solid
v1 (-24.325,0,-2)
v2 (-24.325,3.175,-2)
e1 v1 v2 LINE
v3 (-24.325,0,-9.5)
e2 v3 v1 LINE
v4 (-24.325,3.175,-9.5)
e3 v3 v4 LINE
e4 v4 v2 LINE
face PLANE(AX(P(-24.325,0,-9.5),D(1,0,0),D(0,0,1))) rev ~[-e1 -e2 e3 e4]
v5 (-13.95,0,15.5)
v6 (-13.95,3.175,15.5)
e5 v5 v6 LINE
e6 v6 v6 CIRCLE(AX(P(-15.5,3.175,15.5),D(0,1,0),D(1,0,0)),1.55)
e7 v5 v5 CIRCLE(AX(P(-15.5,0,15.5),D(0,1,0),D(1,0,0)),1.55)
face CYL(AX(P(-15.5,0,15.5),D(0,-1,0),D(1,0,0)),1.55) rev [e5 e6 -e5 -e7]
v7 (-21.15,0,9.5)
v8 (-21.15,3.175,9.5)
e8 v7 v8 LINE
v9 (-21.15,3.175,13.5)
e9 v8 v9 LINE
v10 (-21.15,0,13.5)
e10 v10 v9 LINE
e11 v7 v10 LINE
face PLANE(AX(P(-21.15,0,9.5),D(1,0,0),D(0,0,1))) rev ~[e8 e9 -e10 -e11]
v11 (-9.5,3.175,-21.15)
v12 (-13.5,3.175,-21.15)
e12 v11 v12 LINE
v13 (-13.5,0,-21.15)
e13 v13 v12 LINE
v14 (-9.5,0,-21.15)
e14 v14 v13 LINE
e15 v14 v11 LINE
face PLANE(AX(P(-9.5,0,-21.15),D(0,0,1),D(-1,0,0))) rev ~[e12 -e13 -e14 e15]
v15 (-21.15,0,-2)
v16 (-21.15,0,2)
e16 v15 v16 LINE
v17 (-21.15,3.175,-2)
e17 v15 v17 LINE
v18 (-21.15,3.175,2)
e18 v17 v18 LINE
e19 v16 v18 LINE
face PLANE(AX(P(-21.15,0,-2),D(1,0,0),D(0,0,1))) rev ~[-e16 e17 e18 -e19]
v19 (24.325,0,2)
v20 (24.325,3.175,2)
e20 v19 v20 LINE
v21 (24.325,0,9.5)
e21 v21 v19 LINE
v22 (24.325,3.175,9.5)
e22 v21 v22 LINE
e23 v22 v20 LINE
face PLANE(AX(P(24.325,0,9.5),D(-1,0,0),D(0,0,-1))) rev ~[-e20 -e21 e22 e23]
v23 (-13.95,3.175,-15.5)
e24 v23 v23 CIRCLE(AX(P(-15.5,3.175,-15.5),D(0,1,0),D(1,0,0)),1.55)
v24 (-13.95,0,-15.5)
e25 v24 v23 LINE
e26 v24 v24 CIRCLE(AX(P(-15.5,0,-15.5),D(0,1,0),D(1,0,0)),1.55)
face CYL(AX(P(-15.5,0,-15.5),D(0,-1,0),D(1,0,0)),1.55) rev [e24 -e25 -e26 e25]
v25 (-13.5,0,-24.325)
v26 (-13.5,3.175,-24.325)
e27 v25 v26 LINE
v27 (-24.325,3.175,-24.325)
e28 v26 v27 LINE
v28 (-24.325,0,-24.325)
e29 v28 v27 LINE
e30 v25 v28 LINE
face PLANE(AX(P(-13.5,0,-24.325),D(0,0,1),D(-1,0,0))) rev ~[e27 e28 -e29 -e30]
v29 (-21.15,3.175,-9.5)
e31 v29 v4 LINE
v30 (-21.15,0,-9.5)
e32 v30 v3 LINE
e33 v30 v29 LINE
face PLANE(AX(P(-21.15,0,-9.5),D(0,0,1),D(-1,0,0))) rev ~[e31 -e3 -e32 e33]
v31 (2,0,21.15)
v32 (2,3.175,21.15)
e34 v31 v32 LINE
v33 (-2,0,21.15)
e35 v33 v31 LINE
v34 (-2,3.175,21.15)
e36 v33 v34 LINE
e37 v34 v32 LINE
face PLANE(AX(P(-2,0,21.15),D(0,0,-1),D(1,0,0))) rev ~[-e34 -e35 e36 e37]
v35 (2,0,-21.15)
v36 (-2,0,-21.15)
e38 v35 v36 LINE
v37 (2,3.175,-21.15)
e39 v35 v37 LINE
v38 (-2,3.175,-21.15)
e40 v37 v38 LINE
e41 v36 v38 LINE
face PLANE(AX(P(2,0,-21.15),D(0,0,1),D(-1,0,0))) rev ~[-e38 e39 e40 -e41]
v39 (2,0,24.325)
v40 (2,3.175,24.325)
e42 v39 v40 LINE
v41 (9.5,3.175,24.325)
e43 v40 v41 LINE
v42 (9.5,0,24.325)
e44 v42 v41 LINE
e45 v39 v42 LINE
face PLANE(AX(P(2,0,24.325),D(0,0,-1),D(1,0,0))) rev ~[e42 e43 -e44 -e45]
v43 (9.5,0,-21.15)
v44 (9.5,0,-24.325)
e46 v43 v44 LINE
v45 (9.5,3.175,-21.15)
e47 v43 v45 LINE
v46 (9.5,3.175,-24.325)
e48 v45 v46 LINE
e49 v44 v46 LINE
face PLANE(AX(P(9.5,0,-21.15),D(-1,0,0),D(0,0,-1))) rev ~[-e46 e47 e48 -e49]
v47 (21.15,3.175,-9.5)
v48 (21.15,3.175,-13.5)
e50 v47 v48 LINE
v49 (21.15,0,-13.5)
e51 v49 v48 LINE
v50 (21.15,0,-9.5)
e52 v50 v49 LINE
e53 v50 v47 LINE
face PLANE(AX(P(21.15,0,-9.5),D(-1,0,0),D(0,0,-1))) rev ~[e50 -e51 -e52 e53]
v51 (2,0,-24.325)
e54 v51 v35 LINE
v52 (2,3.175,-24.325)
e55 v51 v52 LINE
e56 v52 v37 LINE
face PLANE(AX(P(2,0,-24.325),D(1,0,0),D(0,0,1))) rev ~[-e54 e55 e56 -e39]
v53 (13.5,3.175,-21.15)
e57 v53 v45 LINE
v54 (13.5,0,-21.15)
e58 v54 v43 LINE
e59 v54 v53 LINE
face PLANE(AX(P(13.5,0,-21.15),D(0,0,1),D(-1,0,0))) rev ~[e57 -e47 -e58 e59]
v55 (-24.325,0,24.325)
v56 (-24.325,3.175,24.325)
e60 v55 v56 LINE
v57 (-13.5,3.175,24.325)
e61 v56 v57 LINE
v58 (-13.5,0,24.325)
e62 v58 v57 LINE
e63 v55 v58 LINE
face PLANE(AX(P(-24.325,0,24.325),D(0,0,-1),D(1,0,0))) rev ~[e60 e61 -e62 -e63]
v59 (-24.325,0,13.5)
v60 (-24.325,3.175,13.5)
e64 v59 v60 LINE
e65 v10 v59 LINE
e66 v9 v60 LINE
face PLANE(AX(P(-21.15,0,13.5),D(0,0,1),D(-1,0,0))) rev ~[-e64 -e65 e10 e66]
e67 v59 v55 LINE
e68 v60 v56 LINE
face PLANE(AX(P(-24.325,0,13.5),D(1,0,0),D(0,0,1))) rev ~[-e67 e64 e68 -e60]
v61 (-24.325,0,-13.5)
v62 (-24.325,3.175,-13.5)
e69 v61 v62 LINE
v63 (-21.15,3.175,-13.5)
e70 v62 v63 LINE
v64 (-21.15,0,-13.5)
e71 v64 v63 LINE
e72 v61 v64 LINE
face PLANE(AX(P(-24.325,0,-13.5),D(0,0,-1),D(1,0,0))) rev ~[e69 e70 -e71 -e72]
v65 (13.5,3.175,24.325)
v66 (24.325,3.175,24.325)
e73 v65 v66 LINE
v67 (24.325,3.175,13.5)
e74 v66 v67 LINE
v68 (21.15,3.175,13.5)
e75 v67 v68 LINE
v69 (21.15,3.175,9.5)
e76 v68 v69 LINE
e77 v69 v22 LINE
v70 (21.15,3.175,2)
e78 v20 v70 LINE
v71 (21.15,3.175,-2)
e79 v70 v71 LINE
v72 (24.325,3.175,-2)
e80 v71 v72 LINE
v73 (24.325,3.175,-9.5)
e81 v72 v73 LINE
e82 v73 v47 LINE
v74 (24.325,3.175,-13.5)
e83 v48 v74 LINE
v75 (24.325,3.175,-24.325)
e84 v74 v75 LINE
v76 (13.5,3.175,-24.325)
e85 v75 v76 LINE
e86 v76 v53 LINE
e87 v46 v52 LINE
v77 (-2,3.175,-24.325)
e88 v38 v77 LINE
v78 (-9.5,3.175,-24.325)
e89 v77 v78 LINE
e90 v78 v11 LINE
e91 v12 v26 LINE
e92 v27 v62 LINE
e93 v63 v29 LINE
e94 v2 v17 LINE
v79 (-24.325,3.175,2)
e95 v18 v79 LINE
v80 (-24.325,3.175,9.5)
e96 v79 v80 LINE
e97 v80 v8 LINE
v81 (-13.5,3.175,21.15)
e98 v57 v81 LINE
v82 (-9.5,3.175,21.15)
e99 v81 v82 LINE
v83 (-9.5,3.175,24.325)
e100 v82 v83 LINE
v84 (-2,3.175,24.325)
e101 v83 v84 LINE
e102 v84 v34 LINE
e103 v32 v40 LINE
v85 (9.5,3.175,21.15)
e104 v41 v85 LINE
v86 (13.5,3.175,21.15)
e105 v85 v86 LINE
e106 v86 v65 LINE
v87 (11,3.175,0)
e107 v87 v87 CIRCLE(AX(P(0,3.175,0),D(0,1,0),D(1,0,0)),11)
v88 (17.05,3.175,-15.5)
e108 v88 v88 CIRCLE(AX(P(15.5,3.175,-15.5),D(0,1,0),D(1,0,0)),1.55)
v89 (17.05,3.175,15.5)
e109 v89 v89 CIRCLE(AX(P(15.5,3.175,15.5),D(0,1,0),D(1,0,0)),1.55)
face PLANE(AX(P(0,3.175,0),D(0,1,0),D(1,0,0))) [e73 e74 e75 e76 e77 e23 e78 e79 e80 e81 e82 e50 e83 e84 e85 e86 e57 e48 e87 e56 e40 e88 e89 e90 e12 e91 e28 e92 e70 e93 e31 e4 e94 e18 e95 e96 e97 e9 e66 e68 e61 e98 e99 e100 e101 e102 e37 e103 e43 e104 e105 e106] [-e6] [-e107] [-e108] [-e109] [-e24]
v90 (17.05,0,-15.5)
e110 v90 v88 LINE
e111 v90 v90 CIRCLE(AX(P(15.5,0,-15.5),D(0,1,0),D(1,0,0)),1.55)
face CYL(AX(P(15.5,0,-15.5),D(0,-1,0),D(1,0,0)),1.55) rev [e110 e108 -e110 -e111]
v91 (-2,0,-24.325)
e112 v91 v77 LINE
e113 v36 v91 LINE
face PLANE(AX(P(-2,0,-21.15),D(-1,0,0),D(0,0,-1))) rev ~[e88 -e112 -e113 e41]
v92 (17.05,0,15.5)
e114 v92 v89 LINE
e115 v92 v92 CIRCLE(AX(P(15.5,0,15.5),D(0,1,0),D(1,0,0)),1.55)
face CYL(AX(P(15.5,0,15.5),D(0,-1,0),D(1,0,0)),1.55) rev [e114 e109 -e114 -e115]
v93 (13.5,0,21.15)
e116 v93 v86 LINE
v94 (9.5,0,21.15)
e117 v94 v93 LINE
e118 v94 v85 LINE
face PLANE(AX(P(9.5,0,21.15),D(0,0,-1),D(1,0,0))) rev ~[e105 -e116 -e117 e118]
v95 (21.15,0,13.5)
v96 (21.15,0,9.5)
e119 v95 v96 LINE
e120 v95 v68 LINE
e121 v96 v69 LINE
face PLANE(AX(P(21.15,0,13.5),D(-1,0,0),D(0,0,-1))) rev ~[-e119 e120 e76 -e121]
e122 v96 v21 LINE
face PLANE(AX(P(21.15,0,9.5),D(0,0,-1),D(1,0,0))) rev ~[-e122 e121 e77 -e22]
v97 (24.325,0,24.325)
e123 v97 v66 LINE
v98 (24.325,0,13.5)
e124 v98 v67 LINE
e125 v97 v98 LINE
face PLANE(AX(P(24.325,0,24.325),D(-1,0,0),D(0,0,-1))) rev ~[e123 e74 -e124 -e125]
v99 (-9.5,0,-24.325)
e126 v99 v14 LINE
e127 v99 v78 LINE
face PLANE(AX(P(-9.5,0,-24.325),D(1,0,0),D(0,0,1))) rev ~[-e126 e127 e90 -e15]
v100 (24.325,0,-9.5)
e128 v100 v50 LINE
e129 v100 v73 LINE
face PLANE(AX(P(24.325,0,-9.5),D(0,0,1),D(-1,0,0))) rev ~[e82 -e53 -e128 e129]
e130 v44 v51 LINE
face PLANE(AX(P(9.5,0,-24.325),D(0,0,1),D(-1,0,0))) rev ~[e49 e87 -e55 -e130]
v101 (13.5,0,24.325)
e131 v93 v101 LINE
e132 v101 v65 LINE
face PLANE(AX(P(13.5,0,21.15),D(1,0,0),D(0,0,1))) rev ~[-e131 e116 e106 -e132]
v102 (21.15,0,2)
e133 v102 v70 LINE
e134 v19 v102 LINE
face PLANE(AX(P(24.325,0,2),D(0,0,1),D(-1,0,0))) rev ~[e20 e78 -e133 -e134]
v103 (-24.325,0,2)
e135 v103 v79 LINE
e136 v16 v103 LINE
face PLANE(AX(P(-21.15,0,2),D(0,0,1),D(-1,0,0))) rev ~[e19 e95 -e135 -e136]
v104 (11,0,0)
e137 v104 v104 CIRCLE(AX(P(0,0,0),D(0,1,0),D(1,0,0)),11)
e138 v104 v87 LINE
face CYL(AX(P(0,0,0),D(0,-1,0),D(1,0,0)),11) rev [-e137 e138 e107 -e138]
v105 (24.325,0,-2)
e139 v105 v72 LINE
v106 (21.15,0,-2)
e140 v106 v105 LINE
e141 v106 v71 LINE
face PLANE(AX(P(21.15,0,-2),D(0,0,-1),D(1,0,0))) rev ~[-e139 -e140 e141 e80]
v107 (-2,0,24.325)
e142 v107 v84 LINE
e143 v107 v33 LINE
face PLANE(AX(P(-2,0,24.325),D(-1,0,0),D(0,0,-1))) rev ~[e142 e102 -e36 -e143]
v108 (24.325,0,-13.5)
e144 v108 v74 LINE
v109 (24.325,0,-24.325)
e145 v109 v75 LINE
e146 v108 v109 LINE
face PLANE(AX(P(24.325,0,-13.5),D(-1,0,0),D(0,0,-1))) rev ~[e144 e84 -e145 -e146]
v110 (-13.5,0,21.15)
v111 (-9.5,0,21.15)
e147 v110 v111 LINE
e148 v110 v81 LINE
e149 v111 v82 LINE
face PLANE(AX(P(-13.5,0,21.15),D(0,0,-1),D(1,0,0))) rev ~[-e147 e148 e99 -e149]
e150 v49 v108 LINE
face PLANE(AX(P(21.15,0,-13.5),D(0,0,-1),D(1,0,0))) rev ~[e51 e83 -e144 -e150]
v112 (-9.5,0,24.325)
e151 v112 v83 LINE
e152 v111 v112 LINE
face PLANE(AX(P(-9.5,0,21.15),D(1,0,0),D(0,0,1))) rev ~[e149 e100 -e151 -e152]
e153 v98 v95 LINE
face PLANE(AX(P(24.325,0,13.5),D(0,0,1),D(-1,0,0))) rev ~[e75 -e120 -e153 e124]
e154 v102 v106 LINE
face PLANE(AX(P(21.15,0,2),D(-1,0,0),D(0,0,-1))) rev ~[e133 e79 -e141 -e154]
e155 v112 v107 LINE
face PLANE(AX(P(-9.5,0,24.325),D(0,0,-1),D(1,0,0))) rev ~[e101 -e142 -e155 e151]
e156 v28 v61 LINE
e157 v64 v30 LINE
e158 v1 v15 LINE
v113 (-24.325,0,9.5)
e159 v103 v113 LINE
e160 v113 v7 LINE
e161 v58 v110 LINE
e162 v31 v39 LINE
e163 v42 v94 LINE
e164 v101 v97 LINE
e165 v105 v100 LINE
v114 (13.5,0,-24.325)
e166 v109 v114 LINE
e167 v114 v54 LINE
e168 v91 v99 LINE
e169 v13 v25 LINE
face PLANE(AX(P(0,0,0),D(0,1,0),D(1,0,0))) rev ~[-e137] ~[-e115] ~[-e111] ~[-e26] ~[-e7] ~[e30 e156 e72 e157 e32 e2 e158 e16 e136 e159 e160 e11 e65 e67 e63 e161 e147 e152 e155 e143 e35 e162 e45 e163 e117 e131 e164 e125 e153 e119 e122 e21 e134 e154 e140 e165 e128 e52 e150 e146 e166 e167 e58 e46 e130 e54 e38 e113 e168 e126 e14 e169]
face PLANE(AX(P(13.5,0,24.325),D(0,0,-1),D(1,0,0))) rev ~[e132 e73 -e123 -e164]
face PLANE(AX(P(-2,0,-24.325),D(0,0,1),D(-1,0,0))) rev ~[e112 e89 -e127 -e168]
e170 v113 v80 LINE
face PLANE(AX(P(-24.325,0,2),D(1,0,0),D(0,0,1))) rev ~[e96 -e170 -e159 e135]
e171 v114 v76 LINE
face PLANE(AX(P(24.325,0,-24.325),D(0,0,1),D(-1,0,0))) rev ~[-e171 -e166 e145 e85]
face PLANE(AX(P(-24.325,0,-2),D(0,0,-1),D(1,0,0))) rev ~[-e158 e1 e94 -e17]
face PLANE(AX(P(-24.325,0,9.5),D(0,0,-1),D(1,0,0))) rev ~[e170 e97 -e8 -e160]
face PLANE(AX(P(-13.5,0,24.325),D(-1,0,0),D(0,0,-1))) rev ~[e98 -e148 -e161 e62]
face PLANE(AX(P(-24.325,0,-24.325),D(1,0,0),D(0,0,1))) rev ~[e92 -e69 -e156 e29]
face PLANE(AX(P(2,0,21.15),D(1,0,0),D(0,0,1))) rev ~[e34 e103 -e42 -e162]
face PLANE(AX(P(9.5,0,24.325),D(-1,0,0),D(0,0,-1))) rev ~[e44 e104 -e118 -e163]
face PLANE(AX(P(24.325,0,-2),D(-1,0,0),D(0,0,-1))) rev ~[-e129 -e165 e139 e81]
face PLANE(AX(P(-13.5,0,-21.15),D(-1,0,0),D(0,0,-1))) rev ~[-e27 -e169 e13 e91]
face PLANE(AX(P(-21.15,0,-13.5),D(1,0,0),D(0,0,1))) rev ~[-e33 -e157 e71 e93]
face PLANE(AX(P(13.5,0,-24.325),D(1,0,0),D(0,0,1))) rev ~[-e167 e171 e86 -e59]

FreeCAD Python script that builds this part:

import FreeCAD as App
import Part
import Sketcher


def add_polygon(sketch, points):
    """Adds a closed chain of lines whose ends are joined by coincident constraints."""
    first, n = sketch.GeometryCount, len(points)
    for a, b in zip(points, points[1:] + points[:1]):
        sketch.addGeometry(Part.LineSegment(App.Vector(*a, 0), App.Vector(*b, 0)), False)
    for i in range(n):
        sketch.addConstraint(Sketcher.Constraint("Coincident", first + i, 2, first + (i + 1) % n, 1))

doc = App.newDocument("Part")
body = doc.addObject("PartDesign::Body", "Body")

sketch1 = doc.addObject("Sketcher::SketchObject", "Sketch")
body.addObject(sketch1)
sketch1.AttachmentSupport = (doc.XZ_Plane, [""])
sketch1.MapMode = "FlatFace"
add_polygon(sketch1, [(24.325, -2), (24.325, -9.5), (21.15, -9.5), (21.15, -13.5), (24.325, -13.5), (24.325, -24.325), (13.5, -24.325), (13.5, -21.15), (9.5, -21.15), (9.5, -24.325), (2, -24.325), (2, -21.15), (-2, -21.15), (-2, -24.325), (-9.5, -24.325), (-9.5, -21.15), (-13.5, -21.15), (-13.5, -24.325), (-24.325, -24.325), (-24.325, -13.5), (-21.15, -13.5), (-21.15, -9.5), (-24.325, -9.5), (-24.325, -2), (-21.15, -2), (-21.15, 2), (-24.325, 2), (-24.325, 9.5), (-21.15, 9.5), (-21.15, 13.5), (-24.325, 13.5), (-24.325, 24.325), (-13.5, 24.325), (-13.5, 21.15), (-9.5, 21.15), (-9.5, 24.325), (-2, 24.325), (-2, 21.15), (2, 21.15), (2, 24.325), (9.5, 24.325), (9.5, 21.15), (13.5, 21.15), (13.5, 24.325), (24.325, 24.325), (24.325, 13.5), (21.15, 13.5), (21.15, 9.5), (24.325, 9.5), (24.325, 2), (21.15, 2), (21.15, -2)])
sketch1.addGeometry(Part.Circle(App.Vector(-15.5, 15.5, 0), App.Vector(0, 0, 1), 1.55), False)
sketch1.addGeometry(Part.Circle(App.Vector(15.5, 15.5, 0), App.Vector(0, 0, 1), 1.55), False)
sketch1.addGeometry(Part.Circle(App.Vector(-15.5, -15.5, 0), App.Vector(0, 0, 1), 1.55), False)
sketch1.addGeometry(Part.Circle(App.Vector(0, 0, 0), App.Vector(0, 0, 1), 11), False)
sketch1.addGeometry(Part.Circle(App.Vector(15.5, -15.5, 0), App.Vector(0, 0, 1), 1.55), False)
sketch1.addConstraint([
    Sketcher.Constraint("Vertical", 0),
    Sketcher.Constraint("Horizontal", 1),
    Sketcher.Constraint("Vertical", 2),
    Sketcher.Constraint("Horizontal", 3),
    Sketcher.Constraint("Vertical", 4),
    Sketcher.Constraint("Horizontal", 5),
    Sketcher.Constraint("Vertical", 6),
    Sketcher.Constraint("Horizontal", 7),
    Sketcher.Constraint("Vertical", 8),
    Sketcher.Constraint("Horizontal", 9),
    Sketcher.Constraint("Vertical", 10),
    Sketcher.Constraint("Horizontal", 11),
    Sketcher.Constraint("Vertical", 12),
    Sketcher.Constraint("Horizontal", 13),
    Sketcher.Constraint("Vertical", 14),
    Sketcher.Constraint("Horizontal", 15),
    Sketcher.Constraint("Vertical", 16),
    Sketcher.Constraint("Horizontal", 17),
    Sketcher.Constraint("Vertical", 18),
    Sketcher.Constraint("Horizontal", 19),
    Sketcher.Constraint("Vertical", 20),
    Sketcher.Constraint("Horizontal", 21),
    Sketcher.Constraint("Vertical", 22),
    Sketcher.Constraint("Horizontal", 23),
    Sketcher.Constraint("Vertical", 24),
    Sketcher.Constraint("Horizontal", 25),
    Sketcher.Constraint("Vertical", 26),
    Sketcher.Constraint("Horizontal", 27),
    Sketcher.Constraint("Vertical", 28),
    Sketcher.Constraint("Horizontal", 29),
    Sketcher.Constraint("Vertical", 30),
    Sketcher.Constraint("Horizontal", 31),
    Sketcher.Constraint("Vertical", 32),
    Sketcher.Constraint("Horizontal", 33),
    Sketcher.Constraint("Vertical", 34),
    Sketcher.Constraint("Horizontal", 35),
    Sketcher.Constraint("Vertical", 36),
    Sketcher.Constraint("Horizontal", 37),
    Sketcher.Constraint("Vertical", 38),
    Sketcher.Constraint("Horizontal", 39),
    Sketcher.Constraint("Vertical", 40),
    Sketcher.Constraint("Horizontal", 41),
    Sketcher.Constraint("Vertical", 42),
    Sketcher.Constraint("Horizontal", 43),
    Sketcher.Constraint("Vertical", 44),
    Sketcher.Constraint("Horizontal", 45),
    Sketcher.Constraint("Vertical", 46),
    Sketcher.Constraint("Horizontal", 47),
    Sketcher.Constraint("Vertical", 48),
    Sketcher.Constraint("Horizontal", 49),
    Sketcher.Constraint("Vertical", 50),
    Sketcher.Constraint("Horizontal", 51),
    Sketcher.Constraint("Coincident", 55, 3, -1, 1),
    Sketcher.Constraint("Equal", 52, 53),
    Sketcher.Constraint("Equal", 53, 54),
    Sketcher.Constraint("Equal", 54, 56),
    Sketcher.Constraint("Symmetric", 53, 3, 54, 3, -1, 1),
    Sketcher.Constraint("Symmetric", 52, 3, 56, 3, -1, 1),
    Sketcher.Constraint("Symmetric", 0, 2, 26, 2, -1, 1),
    Sketcher.Constraint("Symmetric", 2, 2, 28, 2, -1, 1),
    Sketcher.Constraint("Symmetric", 4, 2, 30, 2, -1, 1),
    Sketcher.Constraint("Symmetric", 6, 2, 32, 2, -1, 1),
    Sketcher.Constraint("Symmetric", 8, 2, 34, 2, -1, 1),
    Sketcher.Constraint("Symmetric", 10, 2, 36, 2, -1, 1),
    Sketcher.Constraint("Symmetric", 12, 2, 38, 2, -1, 1),
    Sketcher.Constraint("Symmetric", 14, 2, 40, 2, -1, 1),
    Sketcher.Constraint("Symmetric", 16, 2, 42, 2, -1, 1),
    Sketcher.Constraint("Symmetric", 18, 2, 44, 2, -1, 1),
    Sketcher.Constraint("Symmetric", 20, 2, 46, 2, -1, 1),
    Sketcher.Constraint("Symmetric", 22, 2, 48, 2, -1, 1),
    Sketcher.Constraint("Symmetric", 24, 2, 50, 2, -1, 1),
    Sketcher.Constraint("Symmetric", 52, 3, 53, 3, -2),
    Sketcher.Constraint("Symmetric", 9, 2, 12, 2, -2),
    Sketcher.Constraint("Symmetric", 7, 2, 14, 2, -2),
    Sketcher.Constraint("Symmetric", 5, 2, 16, 2, -2),
    Sketcher.Constraint("Symmetric", 3, 2, 18, 2, -2),
    Sketcher.Constraint("Symmetric", 1, 2, 20, 2, -2),
    Sketcher.Constraint("Symmetric", 25, 2, 48, 2, -2),
    Sketcher.Constraint("Horizontal", 5, 2, 8, 2),
    Sketcher.Constraint("Horizontal", 7, 2, 10, 2),
    Sketcher.Constraint("Vertical", 0, 2, 3, 2),
    Sketcher.Constraint("Vertical", 20, 2, 23, 2),
    Sketcher.Constraint("Equal", 7, 11),
    Sketcher.Constraint("Equal", 39, 0),
    Sketcher.Constraint("Equal", 41, 2),
    Sketcher.Constraint("Equal", 43, 4),
    Sketcher.Constraint("Equal", 51, 6),
    Sketcher.Constraint("Equal", 20, 24),
    Sketcher.Constraint("Diameter", 55, 22.0),
    Sketcher.Constraint("Diameter", 52, 3.1),
    Sketcher.Constraint("DistanceX", 7, 2, 7, 1, 4.0),
    Sketcher.Constraint("DistanceX", 9, 2, 9, 1, 7.5),
    Sketcher.Constraint("DistanceX", 52, 3, 53, 3, 31.0),
    Sketcher.Constraint("DistanceY", 54, 3, 52, 3, 31.0),
    Sketcher.Constraint("DistanceX", 1, 2, 1, 1, 3.175),
    Sketcher.Constraint("DistanceX", 5, 2, 5, 1, 10.825),
])
pad1 = doc.addObject("PartDesign::Pad", "Pad")
body.addObject(pad1)
pad1.Profile = sketch1
pad1.Length = 3.175
pad1.Reversed = True

doc.recompute()
